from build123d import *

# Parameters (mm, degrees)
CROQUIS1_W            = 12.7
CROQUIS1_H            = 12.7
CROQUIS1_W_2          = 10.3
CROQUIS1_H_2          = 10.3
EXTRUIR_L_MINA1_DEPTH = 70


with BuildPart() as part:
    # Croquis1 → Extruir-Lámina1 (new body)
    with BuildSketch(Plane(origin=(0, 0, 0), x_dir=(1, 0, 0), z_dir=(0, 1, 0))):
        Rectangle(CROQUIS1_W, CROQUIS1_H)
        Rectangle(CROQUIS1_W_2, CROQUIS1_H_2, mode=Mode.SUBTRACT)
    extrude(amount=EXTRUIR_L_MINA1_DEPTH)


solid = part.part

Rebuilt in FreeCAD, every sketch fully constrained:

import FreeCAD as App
import Part
import Sketcher
from FreeCAD import Vector

doc = App.newDocument("Part")
body = doc.addObject("PartDesign::Body", "Body")

sketch1 = body.newObject("Sketcher::SketchObject", "Sketch")
sketch1.AttachmentSupport = (doc.getObject("XZ_Plane"), [""])
sketch1.MapMode = "FlatFace"
sketch1.addGeometry([
    Part.LineSegment(Vector(-6.35, -6.35, 0), Vector(-6.35, 6.35, 0)),
    Part.LineSegment(Vector(-6.35, 6.35, 0), Vector(6.35, 6.35, 0)),
    Part.LineSegment(Vector(6.35, 6.35, 0), Vector(6.35, -6.35, 0)),
    Part.LineSegment(Vector(6.35, -6.35, 0), Vector(-6.35, -6.35, 0)),
    Part.LineSegment(Vector(5.15, 5.15, 0), Vector(-5.15, 5.15, 0)),
    Part.LineSegment(Vector(-5.15, 5.15, 0), Vector(-5.15, -5.15, 0)),
    Part.LineSegment(Vector(-5.15, -5.15, 0), Vector(5.15, -5.15, 0)),
    Part.LineSegment(Vector(5.15, -5.15, 0), Vector(5.15, 5.15, 0)),
], False)
sketch1.addConstraint([
    Sketcher.Constraint("Coincident", 0, 2, 1, 1),
    Sketcher.Constraint("Coincident", 1, 2, 2, 1),
    Sketcher.Constraint("Coincident", 2, 2, 3, 1),
    Sketcher.Constraint("Coincident", 3, 2, 0, 1),
    Sketcher.Constraint("Coincident", 4, 2, 5, 1),
    Sketcher.Constraint("Coincident", 5, 2, 6, 1),
    Sketcher.Constraint("Coincident", 6, 2, 7, 1),
    Sketcher.Constraint("Coincident", 7, 2, 4, 1),
    Sketcher.Constraint("Vertical", 0),
    Sketcher.Constraint("Horizontal", 1),
    Sketcher.Constraint("Vertical", 2),
    Sketcher.Constraint("Horizontal", 3),
    Sketcher.Constraint("Horizontal", 4),
    Sketcher.Constraint("Vertical", 5),
    Sketcher.Constraint("Horizontal", 6),
    Sketcher.Constraint("Vertical", 7),
    Sketcher.Constraint("Symmetric", 0, 2, 2, 2, -1, 1),
    Sketcher.Constraint("Symmetric", 4, 2, 6, 2, -1, 1),
    Sketcher.Constraint("Equal", 3, 0),
    Sketcher.Constraint("Equal", 6, 5),
    Sketcher.Constraint("DistanceX", 1, 1, 1, 2, 12.7),
    Sketcher.Constraint("DistanceX", 4, 2, 4, 1, 10.3),
])
pad1 = body.newObject("PartDesign::Pad", "Pad")
pad1.Profile = sketch1
pad1.Length = 70
pad1.Reversed = True

doc.recompute()
